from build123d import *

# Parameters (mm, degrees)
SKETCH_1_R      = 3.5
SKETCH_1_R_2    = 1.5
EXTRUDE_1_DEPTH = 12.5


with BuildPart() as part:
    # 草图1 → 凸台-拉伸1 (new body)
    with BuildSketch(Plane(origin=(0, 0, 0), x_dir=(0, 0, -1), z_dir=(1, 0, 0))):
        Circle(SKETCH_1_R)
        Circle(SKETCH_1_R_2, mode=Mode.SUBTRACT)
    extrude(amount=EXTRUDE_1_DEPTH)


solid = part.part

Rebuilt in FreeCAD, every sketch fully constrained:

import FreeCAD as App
import Part
import Sketcher

doc = App.newDocument("Part")
body = doc.addObject("PartDesign::Body", "Body")

sketch1 = doc.addObject("Sketcher::SketchObject", "Sketch")
body.addObject(sketch1)
sketch1.AttachmentSupport = (doc.YZ_Plane, [""])
sketch1.MapMode = "FlatFace"
sketch1.addGeometry([
    Part.Circle(App.Vector(0, 0, 0), App.Vector(0, 0, 1), 3.5),
    Part.Circle(App.Vector(0, 0, 0), App.Vector(0, 0, 1), 1.5),
], False)
sketch1.addConstraint([
    Sketcher.Constraint("Coincident", 0, 3, -1, 1),
    Sketcher.Constraint("Coincident", 1, 3, -1, 1),
    Sketcher.Constraint("Diameter", 0, 7.0),
    Sketcher.Constraint("Diameter", 1, 3.0),
])
pad1 = doc.addObject("PartDesign::Pad", "Pad")
body.addObject(pad1)
pad1.Profile = sketch1
pad1.Length = 12.5

doc.recompute()
